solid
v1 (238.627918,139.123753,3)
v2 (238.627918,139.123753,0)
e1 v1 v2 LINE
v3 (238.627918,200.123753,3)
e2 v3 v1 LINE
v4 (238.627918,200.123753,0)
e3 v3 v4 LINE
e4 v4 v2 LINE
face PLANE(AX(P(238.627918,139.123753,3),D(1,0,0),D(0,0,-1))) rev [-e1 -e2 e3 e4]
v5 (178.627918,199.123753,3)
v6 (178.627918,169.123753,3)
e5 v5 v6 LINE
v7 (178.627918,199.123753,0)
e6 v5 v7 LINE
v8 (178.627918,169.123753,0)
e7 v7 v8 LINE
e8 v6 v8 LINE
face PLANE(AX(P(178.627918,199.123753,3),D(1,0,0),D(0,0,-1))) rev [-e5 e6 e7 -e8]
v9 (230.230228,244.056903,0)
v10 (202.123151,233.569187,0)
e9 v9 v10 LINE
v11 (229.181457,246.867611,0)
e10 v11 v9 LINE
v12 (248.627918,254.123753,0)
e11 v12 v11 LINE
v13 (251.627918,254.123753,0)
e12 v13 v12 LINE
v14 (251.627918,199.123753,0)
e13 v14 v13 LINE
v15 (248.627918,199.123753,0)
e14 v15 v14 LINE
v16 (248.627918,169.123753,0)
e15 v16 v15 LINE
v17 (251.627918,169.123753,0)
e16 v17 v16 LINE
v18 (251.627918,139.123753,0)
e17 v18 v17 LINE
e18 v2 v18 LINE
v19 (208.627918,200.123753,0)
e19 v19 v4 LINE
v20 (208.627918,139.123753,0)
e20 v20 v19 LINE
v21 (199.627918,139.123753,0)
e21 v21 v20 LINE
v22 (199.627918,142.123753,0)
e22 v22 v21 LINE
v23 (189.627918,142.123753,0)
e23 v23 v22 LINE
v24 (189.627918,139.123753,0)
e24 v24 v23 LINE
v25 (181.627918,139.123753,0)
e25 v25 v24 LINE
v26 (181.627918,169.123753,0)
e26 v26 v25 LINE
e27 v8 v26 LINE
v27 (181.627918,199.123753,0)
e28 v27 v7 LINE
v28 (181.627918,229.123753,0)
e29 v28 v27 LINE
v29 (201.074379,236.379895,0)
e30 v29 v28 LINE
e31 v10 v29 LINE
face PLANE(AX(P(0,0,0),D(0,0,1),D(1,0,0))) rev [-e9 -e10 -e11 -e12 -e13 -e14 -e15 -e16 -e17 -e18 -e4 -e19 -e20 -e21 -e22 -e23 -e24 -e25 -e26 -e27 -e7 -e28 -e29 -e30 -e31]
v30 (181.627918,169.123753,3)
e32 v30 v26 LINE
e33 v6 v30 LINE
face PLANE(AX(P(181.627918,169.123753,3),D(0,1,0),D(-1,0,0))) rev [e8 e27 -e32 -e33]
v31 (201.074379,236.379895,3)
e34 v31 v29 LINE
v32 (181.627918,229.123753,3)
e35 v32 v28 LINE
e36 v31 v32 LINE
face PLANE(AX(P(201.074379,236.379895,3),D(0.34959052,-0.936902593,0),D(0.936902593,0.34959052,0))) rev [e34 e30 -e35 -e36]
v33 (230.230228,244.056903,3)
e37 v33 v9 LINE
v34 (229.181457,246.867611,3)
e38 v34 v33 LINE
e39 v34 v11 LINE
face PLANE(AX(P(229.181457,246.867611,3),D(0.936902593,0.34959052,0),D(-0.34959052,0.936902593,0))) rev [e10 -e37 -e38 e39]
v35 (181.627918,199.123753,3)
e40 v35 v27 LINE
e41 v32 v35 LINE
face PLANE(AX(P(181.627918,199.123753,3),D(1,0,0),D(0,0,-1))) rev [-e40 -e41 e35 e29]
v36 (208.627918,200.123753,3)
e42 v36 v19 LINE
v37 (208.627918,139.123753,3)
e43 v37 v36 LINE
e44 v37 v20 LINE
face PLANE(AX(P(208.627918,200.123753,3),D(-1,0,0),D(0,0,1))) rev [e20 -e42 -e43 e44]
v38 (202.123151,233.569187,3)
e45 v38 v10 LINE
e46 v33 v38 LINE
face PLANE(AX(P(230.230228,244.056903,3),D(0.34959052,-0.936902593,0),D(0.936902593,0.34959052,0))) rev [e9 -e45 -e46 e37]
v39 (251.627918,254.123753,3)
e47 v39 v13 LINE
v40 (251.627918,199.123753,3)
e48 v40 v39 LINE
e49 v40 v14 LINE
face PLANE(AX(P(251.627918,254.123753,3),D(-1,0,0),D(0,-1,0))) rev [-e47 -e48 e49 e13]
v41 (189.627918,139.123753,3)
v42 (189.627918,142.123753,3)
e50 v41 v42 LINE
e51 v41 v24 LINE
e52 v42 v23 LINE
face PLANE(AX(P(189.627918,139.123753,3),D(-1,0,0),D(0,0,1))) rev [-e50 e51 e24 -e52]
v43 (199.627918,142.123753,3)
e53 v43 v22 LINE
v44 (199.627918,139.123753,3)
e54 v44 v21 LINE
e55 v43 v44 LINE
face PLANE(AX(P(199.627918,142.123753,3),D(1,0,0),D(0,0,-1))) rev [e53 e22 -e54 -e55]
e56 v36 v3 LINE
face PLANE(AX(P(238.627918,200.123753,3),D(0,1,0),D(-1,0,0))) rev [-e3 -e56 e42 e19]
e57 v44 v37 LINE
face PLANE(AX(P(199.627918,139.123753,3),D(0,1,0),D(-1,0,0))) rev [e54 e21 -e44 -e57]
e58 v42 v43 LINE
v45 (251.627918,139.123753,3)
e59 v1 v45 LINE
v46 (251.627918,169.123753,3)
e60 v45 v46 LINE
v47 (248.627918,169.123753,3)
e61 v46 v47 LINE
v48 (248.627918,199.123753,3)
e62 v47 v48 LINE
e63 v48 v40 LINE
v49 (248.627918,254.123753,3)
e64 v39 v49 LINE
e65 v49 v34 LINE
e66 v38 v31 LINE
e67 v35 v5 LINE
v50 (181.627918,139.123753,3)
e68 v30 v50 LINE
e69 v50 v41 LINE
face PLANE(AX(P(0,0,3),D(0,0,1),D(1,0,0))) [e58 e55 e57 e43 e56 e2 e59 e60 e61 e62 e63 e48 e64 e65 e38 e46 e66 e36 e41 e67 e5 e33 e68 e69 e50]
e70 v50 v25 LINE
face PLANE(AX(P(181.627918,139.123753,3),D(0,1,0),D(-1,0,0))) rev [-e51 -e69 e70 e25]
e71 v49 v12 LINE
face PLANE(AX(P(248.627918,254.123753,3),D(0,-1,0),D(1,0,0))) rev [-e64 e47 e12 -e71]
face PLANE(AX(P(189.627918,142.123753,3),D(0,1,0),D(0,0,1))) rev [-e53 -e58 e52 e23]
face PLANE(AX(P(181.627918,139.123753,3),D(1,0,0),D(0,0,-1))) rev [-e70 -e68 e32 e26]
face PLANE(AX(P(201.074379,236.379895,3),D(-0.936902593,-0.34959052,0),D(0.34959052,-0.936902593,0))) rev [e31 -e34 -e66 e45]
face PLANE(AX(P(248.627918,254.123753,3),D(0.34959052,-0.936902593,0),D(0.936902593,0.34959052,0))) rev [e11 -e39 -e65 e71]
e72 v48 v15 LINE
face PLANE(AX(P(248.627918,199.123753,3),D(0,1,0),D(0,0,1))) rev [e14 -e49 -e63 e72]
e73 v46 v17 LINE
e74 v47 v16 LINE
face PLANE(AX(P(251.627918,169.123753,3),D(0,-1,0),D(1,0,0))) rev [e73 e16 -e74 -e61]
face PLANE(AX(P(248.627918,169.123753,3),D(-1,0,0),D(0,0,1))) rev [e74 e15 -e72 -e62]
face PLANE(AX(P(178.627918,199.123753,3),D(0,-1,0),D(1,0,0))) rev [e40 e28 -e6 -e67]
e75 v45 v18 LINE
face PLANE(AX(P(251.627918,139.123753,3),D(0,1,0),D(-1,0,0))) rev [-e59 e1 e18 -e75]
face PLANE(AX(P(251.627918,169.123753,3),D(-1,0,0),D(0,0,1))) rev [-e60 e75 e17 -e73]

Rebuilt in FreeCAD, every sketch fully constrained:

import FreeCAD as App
import Part
import Sketcher

V = App.Vector


def add_polygon(sketch, points):
    """Adds a closed chain of lines whose ends are joined by coincident constraints."""
    first, n = sketch.GeometryCount, len(points)
    for a, b in zip(points, points[1:] + points[:1]):
        sketch.addGeometry(Part.LineSegment(App.Vector(*a, 0), App.Vector(*b, 0)), False)
    for i in range(n):
        sketch.addConstraint(Sketcher.Constraint("Coincident", first + i, 2, first + (i + 1) % n, 1))

doc = App.newDocument("Part")
body = doc.addObject("PartDesign::Body", "Body")

sketch1 = body.newObject("Sketcher::SketchObject", "Sketch")
sketch1.AttachmentSupport = (doc.getObject("XY_Plane"), [""])
sketch1.MapMode = "FlatFace"
add_polygon(sketch1, [(178.6, 199.1), (178.6, 169.1), (181.6, 169.1), (181.6, 139.1), (189.6, 139.1), (189.6, 142.1), (199.6, 142.1), (199.6, 139.1), (208.6, 139.1), (208.6, 200.1), (238.6, 200.1), (238.6, 139.1), (251.6, 139.1), (251.6, 169.1), (248.6, 169.1), (248.6, 199.1), (251.6, 199.1), (251.6, 254.1), (248.6, 254.1), (229.2, 246.9), (230.2, 244.1), (202.1, 233.6), (201.1, 236.4), (181.6, 229.1), (181.6, 199.1)])
sketch1.addConstraint([
    Sketcher.Constraint("Vertical", 0),
    Sketcher.Constraint("Horizontal", 1),
    Sketcher.Constraint("Vertical", 2),
    Sketcher.Constraint("Horizontal", 3),
    Sketcher.Constraint("Vertical", 4),
    Sketcher.Constraint("Horizontal", 5),
    Sketcher.Constraint("Vertical", 6),
    Sketcher.Constraint("Horizontal", 7),
    Sketcher.Constraint("Vertical", 8),
    Sketcher.Constraint("Horizontal", 9),
    Sketcher.Constraint("Vertical", 10),
    Sketcher.Constraint("Horizontal", 11),
    Sketcher.Constraint("Vertical", 12),
    Sketcher.Constraint("Horizontal", 13),
    Sketcher.Constraint("Vertical", 14),
    Sketcher.Constraint("Horizontal", 15),
    Sketcher.Constraint("Vertical", 16),
    Sketcher.Constraint("Horizontal", 17),
    Sketcher.Constraint("Vertical", 23),
    Sketcher.Constraint("Horizontal", 24),
    Sketcher.Constraint("Perpendicular", 18, 19),
    Sketcher.Constraint("Perpendicular", 19, 20),
    Sketcher.Constraint("Perpendicular", 20, 21),
    Sketcher.Constraint("Perpendicular", 21, 22),
    Sketcher.Constraint("Horizontal", 3, 2, 6, 2),
    Sketcher.Constraint("Horizontal", 7, 2, 10, 2),
    Sketcher.Constraint("Horizontal", 1, 2, 12, 2),
    Sketcher.Constraint("Horizontal", 15, 2, 23, 2),
    Sketcher.Constraint("Vertical", 12, 2, 15, 2),
    Sketcher.Constraint("Vertical", 14, 2, 17, 2),
    Sketcher.Constraint("Vertical", 2, 2, 22, 2),
    Sketcher.Constraint("Equal", 1, 13),
    Sketcher.Constraint("Equal", 9, 0),
    Sketcher.Constraint("Equal", 0, 2),
    Sketcher.Constraint("Equal", 24, 4),
    Sketcher.Constraint("Equal", 14, 23),
    Sketcher.Constraint("Equal", 19, 21),
    Sketcher.Constraint("Equal", 18, 22),
    Sketcher.Constraint("DistanceX", 1, 1, 1, 2, 3.0),
    Sketcher.Constraint("DistanceX", 3, 1, 3, 2, 8.0),
    Sketcher.Constraint("DistanceX", 5, 1, 5, 2, 10.0),
    Sketcher.Constraint("DistanceX", 7, 1, 7, 2, 9.0),
    Sketcher.Constraint("DistanceX", 9, 1, 9, 2, 30.0),
    Sketcher.Constraint("DistanceX", 11, 1, 11, 2, 13.0),
    Sketcher.Constraint("DistanceY", 8, 1, 8, 2, 61.0),
    Sketcher.Constraint("DistanceY", 16, 1, 16, 2, 55.0),
    Sketcher.Constraint("Distance", 19, 3.0),
    Sketcher.Constraint("Distance", 20, 30.0),
    Sketcher.Constraint("DistanceX", -1, 1, 0, 2, 178.627918),
    Sketcher.Constraint("DistanceY", -1, 1, 18, 2, 246.867611),
])
pad1 = body.newObject("PartDesign::Pad", "Pad")
pad1.Profile = sketch1
pad1.Length = 3

doc.recompute()
